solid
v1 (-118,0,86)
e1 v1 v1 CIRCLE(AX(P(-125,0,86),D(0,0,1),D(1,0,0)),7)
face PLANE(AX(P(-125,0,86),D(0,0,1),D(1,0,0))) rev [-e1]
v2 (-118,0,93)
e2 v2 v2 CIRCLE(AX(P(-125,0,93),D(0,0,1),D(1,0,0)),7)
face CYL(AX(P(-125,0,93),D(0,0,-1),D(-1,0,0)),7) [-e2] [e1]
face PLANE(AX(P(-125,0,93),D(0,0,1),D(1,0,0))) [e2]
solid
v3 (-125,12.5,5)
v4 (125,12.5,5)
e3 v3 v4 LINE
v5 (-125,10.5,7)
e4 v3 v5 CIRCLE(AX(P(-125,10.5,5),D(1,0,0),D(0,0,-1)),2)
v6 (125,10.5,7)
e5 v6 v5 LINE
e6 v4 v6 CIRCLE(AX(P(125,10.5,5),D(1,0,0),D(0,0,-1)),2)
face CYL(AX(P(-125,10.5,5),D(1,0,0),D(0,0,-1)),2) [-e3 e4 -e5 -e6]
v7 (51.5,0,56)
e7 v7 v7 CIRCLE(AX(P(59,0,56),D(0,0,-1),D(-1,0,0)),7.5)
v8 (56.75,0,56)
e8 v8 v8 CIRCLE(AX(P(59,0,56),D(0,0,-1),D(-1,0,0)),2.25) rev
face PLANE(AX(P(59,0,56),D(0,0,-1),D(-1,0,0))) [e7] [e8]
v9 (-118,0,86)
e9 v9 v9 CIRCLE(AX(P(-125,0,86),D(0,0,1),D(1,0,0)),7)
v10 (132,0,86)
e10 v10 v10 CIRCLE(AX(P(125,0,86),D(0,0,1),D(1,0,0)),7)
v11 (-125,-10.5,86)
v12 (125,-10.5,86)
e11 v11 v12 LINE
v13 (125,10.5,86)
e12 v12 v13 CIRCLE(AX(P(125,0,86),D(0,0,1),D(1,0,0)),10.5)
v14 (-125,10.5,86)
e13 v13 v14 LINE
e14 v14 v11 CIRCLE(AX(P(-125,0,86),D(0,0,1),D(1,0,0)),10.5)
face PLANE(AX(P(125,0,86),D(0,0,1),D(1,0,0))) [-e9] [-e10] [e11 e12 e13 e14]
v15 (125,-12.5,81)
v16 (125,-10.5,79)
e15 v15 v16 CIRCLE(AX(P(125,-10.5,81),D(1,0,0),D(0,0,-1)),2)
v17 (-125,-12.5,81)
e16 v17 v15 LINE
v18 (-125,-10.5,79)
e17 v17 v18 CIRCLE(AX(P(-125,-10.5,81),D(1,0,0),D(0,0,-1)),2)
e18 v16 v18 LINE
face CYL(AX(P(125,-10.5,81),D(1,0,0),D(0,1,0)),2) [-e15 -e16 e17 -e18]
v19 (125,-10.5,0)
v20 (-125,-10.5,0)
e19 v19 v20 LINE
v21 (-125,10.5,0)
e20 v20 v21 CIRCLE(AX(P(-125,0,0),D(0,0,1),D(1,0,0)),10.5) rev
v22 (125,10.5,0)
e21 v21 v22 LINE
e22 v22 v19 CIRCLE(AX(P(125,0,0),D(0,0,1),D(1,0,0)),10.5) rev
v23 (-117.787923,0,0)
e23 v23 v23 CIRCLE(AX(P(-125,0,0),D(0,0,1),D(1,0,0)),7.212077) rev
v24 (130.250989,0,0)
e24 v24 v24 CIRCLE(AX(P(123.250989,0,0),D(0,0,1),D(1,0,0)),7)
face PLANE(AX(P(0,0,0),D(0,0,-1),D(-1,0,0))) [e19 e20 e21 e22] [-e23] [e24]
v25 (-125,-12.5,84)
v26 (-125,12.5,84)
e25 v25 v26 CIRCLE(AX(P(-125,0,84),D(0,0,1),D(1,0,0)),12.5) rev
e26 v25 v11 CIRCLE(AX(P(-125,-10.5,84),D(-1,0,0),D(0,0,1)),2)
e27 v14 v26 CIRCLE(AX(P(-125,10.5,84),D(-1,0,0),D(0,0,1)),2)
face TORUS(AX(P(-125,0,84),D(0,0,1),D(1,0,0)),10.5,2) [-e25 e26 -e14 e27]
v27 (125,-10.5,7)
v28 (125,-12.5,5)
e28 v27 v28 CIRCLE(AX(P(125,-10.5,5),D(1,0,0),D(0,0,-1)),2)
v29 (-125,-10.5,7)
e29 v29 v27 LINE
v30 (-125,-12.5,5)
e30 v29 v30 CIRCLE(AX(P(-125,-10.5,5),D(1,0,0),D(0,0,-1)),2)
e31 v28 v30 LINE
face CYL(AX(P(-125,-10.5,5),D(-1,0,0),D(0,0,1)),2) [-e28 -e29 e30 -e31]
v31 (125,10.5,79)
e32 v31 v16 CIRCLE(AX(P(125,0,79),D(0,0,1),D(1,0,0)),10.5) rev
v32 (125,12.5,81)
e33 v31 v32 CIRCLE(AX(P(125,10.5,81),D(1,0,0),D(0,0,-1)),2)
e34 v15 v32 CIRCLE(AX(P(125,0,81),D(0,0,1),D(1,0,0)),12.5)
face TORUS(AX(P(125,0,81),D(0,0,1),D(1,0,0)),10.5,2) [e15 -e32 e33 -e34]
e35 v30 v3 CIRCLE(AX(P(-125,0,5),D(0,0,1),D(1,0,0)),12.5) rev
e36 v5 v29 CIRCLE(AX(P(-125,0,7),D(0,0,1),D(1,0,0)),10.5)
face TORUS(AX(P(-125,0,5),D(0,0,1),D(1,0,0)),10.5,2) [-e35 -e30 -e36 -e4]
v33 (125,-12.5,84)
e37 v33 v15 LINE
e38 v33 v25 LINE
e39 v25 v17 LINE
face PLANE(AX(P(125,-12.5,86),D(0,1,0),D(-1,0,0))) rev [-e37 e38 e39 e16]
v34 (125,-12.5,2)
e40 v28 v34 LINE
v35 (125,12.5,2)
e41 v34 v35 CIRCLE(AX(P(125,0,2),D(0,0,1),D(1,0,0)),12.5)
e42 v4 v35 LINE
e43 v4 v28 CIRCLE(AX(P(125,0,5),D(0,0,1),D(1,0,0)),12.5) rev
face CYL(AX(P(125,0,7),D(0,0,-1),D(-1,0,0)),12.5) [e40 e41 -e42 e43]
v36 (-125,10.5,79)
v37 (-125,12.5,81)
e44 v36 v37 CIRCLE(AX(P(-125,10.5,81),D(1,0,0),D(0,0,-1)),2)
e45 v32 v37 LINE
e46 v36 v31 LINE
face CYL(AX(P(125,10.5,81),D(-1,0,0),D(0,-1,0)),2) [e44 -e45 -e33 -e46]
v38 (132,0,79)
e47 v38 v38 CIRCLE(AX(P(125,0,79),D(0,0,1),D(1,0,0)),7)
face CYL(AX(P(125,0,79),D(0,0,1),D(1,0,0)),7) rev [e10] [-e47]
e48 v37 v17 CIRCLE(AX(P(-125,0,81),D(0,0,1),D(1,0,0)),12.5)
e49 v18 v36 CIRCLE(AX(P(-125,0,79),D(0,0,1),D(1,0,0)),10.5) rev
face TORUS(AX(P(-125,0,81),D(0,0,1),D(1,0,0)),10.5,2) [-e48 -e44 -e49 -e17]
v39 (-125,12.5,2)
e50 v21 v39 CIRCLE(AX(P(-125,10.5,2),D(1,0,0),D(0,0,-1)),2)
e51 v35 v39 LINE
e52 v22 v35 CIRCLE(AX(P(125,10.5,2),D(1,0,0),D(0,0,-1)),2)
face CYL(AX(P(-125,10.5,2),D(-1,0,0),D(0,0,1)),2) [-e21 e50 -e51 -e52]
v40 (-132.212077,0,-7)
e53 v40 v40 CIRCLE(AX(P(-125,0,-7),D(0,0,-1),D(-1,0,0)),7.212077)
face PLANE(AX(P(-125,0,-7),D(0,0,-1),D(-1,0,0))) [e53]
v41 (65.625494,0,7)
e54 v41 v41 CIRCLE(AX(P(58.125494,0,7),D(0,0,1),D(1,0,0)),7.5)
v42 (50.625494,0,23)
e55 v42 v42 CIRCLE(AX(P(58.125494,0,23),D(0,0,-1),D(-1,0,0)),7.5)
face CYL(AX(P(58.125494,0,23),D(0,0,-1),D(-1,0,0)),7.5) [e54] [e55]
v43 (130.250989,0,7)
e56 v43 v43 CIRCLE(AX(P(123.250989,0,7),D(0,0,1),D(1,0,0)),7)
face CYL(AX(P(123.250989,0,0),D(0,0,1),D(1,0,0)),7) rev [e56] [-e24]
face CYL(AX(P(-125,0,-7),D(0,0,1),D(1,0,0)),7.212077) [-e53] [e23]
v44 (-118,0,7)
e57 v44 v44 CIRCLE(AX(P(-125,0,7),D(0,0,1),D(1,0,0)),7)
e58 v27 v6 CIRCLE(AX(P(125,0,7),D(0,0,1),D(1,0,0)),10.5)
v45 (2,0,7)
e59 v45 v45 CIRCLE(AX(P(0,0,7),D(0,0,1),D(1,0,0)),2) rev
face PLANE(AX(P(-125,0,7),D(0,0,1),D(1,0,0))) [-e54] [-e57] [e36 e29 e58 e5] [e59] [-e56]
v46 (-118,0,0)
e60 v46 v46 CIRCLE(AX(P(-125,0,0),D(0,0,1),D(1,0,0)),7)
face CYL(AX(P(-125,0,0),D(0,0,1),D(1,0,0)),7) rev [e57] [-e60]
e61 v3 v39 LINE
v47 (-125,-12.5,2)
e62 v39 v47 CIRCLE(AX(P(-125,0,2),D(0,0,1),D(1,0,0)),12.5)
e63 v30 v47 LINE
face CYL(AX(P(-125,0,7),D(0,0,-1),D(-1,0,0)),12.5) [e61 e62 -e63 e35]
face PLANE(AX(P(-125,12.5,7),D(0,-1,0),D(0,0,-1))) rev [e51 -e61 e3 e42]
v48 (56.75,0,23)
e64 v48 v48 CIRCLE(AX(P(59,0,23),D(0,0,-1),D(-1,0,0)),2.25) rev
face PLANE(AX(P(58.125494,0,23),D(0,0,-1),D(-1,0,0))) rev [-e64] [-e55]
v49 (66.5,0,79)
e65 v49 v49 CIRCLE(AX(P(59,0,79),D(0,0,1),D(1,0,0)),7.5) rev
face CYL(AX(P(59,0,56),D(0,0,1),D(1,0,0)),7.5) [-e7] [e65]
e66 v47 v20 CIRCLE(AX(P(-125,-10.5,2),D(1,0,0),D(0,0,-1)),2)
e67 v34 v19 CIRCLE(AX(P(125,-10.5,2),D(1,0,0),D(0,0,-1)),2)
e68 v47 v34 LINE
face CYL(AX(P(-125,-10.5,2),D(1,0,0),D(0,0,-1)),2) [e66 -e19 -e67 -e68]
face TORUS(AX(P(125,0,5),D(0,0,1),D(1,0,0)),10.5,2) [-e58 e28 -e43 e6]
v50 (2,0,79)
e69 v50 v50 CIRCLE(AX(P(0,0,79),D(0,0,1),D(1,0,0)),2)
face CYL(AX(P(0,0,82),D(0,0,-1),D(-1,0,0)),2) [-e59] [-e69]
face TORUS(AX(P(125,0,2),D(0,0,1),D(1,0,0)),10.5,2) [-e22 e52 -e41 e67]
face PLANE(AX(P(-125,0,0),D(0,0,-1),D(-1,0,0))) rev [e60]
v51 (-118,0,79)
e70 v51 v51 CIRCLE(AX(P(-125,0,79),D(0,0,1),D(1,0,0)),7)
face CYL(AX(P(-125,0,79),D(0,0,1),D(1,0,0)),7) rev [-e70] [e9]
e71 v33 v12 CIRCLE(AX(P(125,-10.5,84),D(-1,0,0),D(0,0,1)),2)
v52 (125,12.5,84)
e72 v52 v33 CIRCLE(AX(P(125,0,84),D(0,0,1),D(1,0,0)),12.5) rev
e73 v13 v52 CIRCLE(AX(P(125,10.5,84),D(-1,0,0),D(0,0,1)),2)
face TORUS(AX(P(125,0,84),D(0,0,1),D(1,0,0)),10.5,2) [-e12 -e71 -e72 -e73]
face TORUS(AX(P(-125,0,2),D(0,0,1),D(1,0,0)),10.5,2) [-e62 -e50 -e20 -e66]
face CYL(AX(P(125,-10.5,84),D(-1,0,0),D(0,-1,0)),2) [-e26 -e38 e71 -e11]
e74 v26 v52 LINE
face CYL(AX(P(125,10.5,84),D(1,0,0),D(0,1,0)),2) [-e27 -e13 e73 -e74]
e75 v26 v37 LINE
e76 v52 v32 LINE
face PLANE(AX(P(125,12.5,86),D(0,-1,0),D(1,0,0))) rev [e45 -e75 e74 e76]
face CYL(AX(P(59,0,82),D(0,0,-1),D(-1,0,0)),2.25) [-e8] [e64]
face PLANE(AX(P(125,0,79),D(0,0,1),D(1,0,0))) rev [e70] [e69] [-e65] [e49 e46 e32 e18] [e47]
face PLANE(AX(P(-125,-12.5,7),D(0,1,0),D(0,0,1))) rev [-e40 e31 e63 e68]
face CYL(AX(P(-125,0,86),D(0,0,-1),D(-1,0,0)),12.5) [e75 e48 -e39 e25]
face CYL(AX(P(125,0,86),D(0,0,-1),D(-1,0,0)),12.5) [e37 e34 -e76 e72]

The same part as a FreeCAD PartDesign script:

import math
import FreeCAD as App
import Part
import Sketcher

V = App.Vector


def edges_at(feature, points):
    """Names of the edges that pass closest to the given points."""
    edges = feature.Shape.Edges
    near = lambda p: min(range(len(edges)), key=lambda i: edges[i].distToShape(Part.Vertex(*p))[0])
    return sorted({f"Edge{near(p) + 1}" for p in points})

doc = App.newDocument("Part")
body = doc.addObject("PartDesign::Body", "Body")

# Sketch on XY plane
sketch1 = body.newObject("Sketcher::SketchObject", "Sketch")
sketch1.AttachmentSupport = (doc.getObject("XY_Plane"), [""])
sketch1.MapMode = "FlatFace"
sketch1.addGeometry([
    Part.LineSegment(V(125, 12, 0), V(-125, 12, 0)),
    Part.ArcOfCircle(Part.Circle(V(-125, 0, 0), V(0, 0, 1), 12), math.radians(90), math.radians(270)),
    Part.LineSegment(V(-125, -12, 0), V(125, -12, 0)),
    Part.ArcOfCircle(Part.Circle(V(125, 0, 0), V(0, 0, 1), 12), math.radians(-90), math.radians(90)),
], False)
sketch1.addConstraint([
    Sketcher.Constraint("Tangent", 0, 2, 1, 1),
    Sketcher.Constraint("Tangent", 1, 2, 2, 1),
    Sketcher.Constraint("Tangent", 2, 2, 3, 1),
    Sketcher.Constraint("Tangent", 3, 2, 0, 1),
    Sketcher.Constraint("Horizontal", 0),
    Sketcher.Constraint("Horizontal", 2),
    Sketcher.Constraint("Symmetric", 1, 3, 3, 3, -1, 1),
    Sketcher.Constraint("Radius", 1, 12.5),
    Sketcher.Constraint("DistanceX", 0, 2, 0, 1, 250.0),
])
pad1 = body.newObject("PartDesign::Pad", "Pad")
pad1.Profile = sketch1
pad1.Length = 7

# Sketch on XY plane
sketch2 = body.newObject("Sketcher::SketchObject", "Sketch001")
sketch2.AttachmentSupport = (doc.getObject("XY_Plane"), [""])
sketch2.MapMode = "FlatFace"
sketch2.AttachmentOffset = App.Placement(V(0, 0, 7), App.Rotation())
sketch2.addGeometry(Part.Circle(V(-125, 0, 0), V(0, 0, 1), 7), False)
sketch2.addConstraint([
    Sketcher.Constraint("PointOnObject", 0, 3, -1),
    Sketcher.Constraint("Diameter", 0, 14.0),
    Sketcher.Constraint("DistanceX", 0, 3, -1, 1, 125.0),
])
pocket1 = body.newObject("PartDesign::Pocket", "Pocket")
pocket1.Profile = sketch2
pocket1.Length = 7

# Sketch on XY plane
sketch3 = body.newObject("Sketcher::SketchObject", "Sketch002")
sketch3.AttachmentSupport = (doc.getObject("XY_Plane"), [""])
sketch3.MapMode = "FlatFace"
sketch3.AttachmentOffset = App.Placement(V(0, 0, 7), App.Rotation())
sketch3.addGeometry(Part.Circle(V(123, 0, 0), V(0, 0, 1), 7), False)
sketch3.addConstraint([
    Sketcher.Constraint("PointOnObject", 0, 3, -1),
    Sketcher.Constraint("Diameter", 0, 14.0),
    Sketcher.Constraint("DistanceX", -1, 1, 0, 3, 123.250989),
])
pocket2 = body.newObject("PartDesign::Pocket", "Pocket001")
pocket2.Profile = sketch3
pocket2.Length = 7

# Sketch on XY plane
sketch4 = body.newObject("Sketcher::SketchObject", "Sketch003")
sketch4.AttachmentSupport = (doc.getObject("XY_Plane"), [""])
sketch4.MapMode = "FlatFace"
sketch4.addGeometry(Part.Circle(V(-125, 0, 0), V(0, 0, 1), 7), False)
sketch4.addConstraint([
    Sketcher.Constraint("PointOnObject", 0, 3, -1),
    Sketcher.Constraint("DistanceX", 0, 3, -1, 1, 125.0),
    Sketcher.Constraint("Diameter", 0, 14.424154),
])
pad2 = body.newObject("PartDesign::Pad", "Pad001")
pad2.Profile = sketch4
pad2.Length = 7
pad2.Reversed = True
doc.recompute()

fillet = body.newObject("PartDesign::Fillet", "Fillet")
fillet.Base = (pad2, edges_at(pad2, [
    (137.5, 0, 7),
    (0, 12.5, 7),
    (-137.5, 0, 7),
    (0, 12.5, 0),
    (137.5, 0, 0),
    (0, -12.5, 0),
    (-137.5, 0, 0),
    (0, -12.5, 7),
]))
fillet.Radius = 2
body2 = doc.addObject("PartDesign::Body", "Body001")

# Sketch on XY plane
sketch5 = body2.newObject("Sketcher::SketchObject", "Sketch004")
sketch5.AttachmentSupport = (doc.getObject("XY_Plane001"), [""])
sketch5.MapMode = "FlatFace"
sketch5.AttachmentOffset = App.Placement(V(0, 0, 79), App.Rotation())
sketch5.addGeometry([
    Part.LineSegment(V(-125, -12, 0), V(125, -12, 0)),
    Part.ArcOfCircle(Part.Circle(V(125, 0, 0), V(0, 0, 1), 12), math.radians(-90), math.radians(90)),
    Part.LineSegment(V(125, 12, 0), V(-125, 12, 0)),
    Part.ArcOfCircle(Part.Circle(V(-125, 0, 0), V(0, 0, 1), 12), math.radians(90), math.radians(270)),
], False)
sketch5.addConstraint([
    Sketcher.Constraint("Tangent", 0, 2, 1, 1),
    Sketcher.Constraint("Tangent", 1, 2, 2, 1),
    Sketcher.Constraint("Tangent", 2, 2, 3, 1),
    Sketcher.Constraint("Tangent", 3, 2, 0, 1),
    Sketcher.Constraint("Horizontal", 0),
    Sketcher.Constraint("Horizontal", 2),
    Sketcher.Constraint("Symmetric", 1, 3, 3, 3, -1, 1),
    Sketcher.Constraint("Radius", 1, 12.5),
    Sketcher.Constraint("DistanceX", 0, 1, 0, 2, 250.0),
])
pad3 = body2.newObject("PartDesign::Pad", "Pad002")
pad3.Profile = sketch5
pad3.Length = 7

# Sketch on XY plane
sketch6 = body2.newObject("Sketcher::SketchObject", "Sketch005")
sketch6.AttachmentSupport = (doc.getObject("XY_Plane001"), [""])
sketch6.MapMode = "FlatFace"
sketch6.AttachmentOffset = App.Placement(V(0, 0, 86), App.Rotation())
sketch6.addGeometry([
    Part.Circle(V(125, 0, 0), V(0, 0, 1), 7),
    Part.Circle(V(-125, 0, 0), V(0, 0, 1), 7),
], False)
sketch6.addConstraint([
    Sketcher.Constraint("Equal", 0, 1),
    Sketcher.Constraint("Symmetric", 0, 3, 1, 3, -1, 1),
    Sketcher.Constraint("PointOnObject", 0, 3, -1),
    Sketcher.Constraint("Diameter", 0, 14.0),
    Sketcher.Constraint("DistanceX", -1, 1, 0, 3, 125.0),
])
pocket3 = body2.newObject("PartDesign::Pocket", "Pocket002")
pocket3.Profile = sketch6
pocket3.Length = 7
doc.recompute()

fillet2 = body2.newObject("PartDesign::Fillet", "Fillet001")
fillet2.Base = (pocket3, edges_at(pocket3, [
    (-137.5, 0, 86),
    (0, -12.5, 86),
    (137.5, 0, 86),
    (0, -12.5, 79),
    (-137.5, 0, 79),
    (0, 12.5, 79),
    (137.5, 0, 79),
    (0, 12.5, 86),
]))
fillet2.Radius = 2
body3 = doc.addObject("PartDesign::Body", "Body002")

# Sketch on XY plane
sketch7 = body3.newObject("Sketcher::SketchObject", "Sketch006")
sketch7.AttachmentSupport = (doc.getObject("XY_Plane002"), [""])
sketch7.MapMode = "FlatFace"
sketch7.AttachmentOffset = App.Placement(V(0, 0, 86), App.Rotation())
sketch7.addGeometry(Part.Circle(V(-125, 0, 0), V(0, 0, 1), 7), False)
sketch7.addConstraint([
    Sketcher.Constraint("PointOnObject", 0, 3, -1),
    Sketcher.Constraint("Diameter", 0, 14.0),
    Sketcher.Constraint("DistanceX", 0, 3, -1, 1, 125.0),
])
pad4 = body3.newObject("PartDesign::Pad", "Pad003")
pad4.Profile = sketch7
pad4.Length = 7
body.AllowCompound = True
doc.recompute()

boolean = body.newObject("PartDesign::Boolean", "Boolean")
boolean.Type = "Fuse"
boolean.addObjects([body2])

# Sketch on XY plane
sketch8 = body.newObject("Sketcher::SketchObject", "Sketch007")
sketch8.AttachmentSupport = (doc.getObject("XY_Plane"), [""])
sketch8.MapMode = "FlatFace"
sketch8.addGeometry(Part.Circle(V(0, 0, 0), V(0, 0, 1), 2), False)
sketch8.addConstraint([
    Sketcher.Constraint("Coincident", 0, 3, -1, 1),
    Sketcher.Constraint("Diameter", 0, 4.0),
])
pad5 = body.newObject("PartDesign::Pad", "Pad004")
pad5.Profile = sketch8
pad5.Length = 82

# Sketch on XY plane
sketch9 = body.newObject("Sketcher::SketchObject", "Sketch008")
sketch9.AttachmentSupport = (doc.getObject("XY_Plane"), [""])
sketch9.MapMode = "FlatFace"
sketch9.addGeometry(Part.Circle(V(59, 0, 0), V(0, 0, 1), 2.2), False)
sketch9.addConstraint([
    Sketcher.Constraint("PointOnObject", 0, 3, -1),
    Sketcher.Constraint("Diameter", 0, 4.5),
    Sketcher.Constraint("DistanceX", -1, 1, 0, 3, 59.0),
])
pad6 = body.newObject("PartDesign::Pad", "Pad005")
pad6.Profile = sketch9
pad6.Length = 82

# Sketch on XY plane
sketch10 = body.newObject("Sketcher::SketchObject", "Sketch009")
sketch10.AttachmentSupport = (doc.getObject("XY_Plane"), [""])
sketch10.MapMode = "FlatFace"
sketch10.addGeometry(Part.Circle(V(58, 0, 0), V(0, 0, 1), 8), False)
sketch10.addConstraint([
    Sketcher.Constraint("PointOnObject", 0, 3, -1),
    Sketcher.Constraint("Diameter", 0, 15.0),
    Sketcher.Constraint("DistanceX", -1, 1, 0, 3, 58.125494),
])
pad7 = body.newObject("PartDesign::Pad", "Pad006")
pad7.Profile = sketch10
pad7.Length = 23

# Sketch on XY plane
sketch11 = body.newObject("Sketcher::SketchObject", "Sketch010")
sketch11.AttachmentSupport = (doc.getObject("XY_Plane"), [""])
sketch11.MapMode = "FlatFace"
sketch11.AttachmentOffset = App.Placement(V(0, 0, 79), App.Rotation())
sketch11.addGeometry(Part.Circle(V(59, 0, 0), V(0, 0, 1), 8), False)
sketch11.addConstraint([
    Sketcher.Constraint("PointOnObject", 0, 3, -1),
    Sketcher.Constraint("Diameter", 0, 15.0),
    Sketcher.Constraint("DistanceX", -1, 1, 0, 3, 59.0),
])
pad8 = body.newObject("PartDesign::Pad", "Pad007")
pad8.Profile = sketch11
pad8.Length = 23
pad8.Reversed = True

doc.recompute()
